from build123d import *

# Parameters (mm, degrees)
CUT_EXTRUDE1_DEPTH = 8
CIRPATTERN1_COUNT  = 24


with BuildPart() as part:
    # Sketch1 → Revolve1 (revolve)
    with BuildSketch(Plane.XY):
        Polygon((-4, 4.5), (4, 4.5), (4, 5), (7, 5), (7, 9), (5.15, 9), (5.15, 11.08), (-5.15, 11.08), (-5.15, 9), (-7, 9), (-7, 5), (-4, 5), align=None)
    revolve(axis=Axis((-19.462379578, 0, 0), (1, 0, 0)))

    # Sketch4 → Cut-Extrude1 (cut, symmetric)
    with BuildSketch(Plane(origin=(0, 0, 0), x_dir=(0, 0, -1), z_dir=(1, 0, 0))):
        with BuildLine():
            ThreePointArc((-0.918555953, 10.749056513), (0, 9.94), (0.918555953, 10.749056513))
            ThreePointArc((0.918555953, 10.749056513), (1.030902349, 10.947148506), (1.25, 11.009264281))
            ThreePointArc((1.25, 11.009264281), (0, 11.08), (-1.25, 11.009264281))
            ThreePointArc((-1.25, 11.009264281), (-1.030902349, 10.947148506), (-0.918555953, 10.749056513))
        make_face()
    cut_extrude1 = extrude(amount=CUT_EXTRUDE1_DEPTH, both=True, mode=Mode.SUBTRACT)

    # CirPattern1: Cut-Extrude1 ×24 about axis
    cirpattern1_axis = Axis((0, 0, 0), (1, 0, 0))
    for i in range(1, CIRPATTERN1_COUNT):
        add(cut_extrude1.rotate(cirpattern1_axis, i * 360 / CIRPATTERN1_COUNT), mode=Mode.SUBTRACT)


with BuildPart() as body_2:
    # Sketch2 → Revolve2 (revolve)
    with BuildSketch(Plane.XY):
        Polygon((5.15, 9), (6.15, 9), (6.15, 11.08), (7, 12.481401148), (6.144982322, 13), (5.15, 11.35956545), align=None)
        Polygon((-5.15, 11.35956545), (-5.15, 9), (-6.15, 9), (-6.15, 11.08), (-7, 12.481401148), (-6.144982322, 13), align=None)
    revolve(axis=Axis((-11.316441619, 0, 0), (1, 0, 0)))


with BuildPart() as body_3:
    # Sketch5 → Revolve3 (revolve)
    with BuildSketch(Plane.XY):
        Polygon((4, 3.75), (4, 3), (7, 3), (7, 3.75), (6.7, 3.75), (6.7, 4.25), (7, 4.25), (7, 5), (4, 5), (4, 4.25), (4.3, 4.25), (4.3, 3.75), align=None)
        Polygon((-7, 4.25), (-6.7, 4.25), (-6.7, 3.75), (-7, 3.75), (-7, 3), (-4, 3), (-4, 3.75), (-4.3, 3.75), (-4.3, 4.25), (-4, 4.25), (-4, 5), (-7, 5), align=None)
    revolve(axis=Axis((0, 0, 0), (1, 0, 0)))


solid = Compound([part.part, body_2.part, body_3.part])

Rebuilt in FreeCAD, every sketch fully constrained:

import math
import FreeCAD as App
import Part
import Sketcher

V = App.Vector
Q = App.Units.Quantity

doc = App.newDocument("Part")
body = doc.addObject("PartDesign::Body", "Body")

sketch1 = body.newObject("Sketcher::SketchObject", "Sketch")
sketch1.AttachmentSupport = (doc.getObject("XY_Plane"), [""])
sketch1.MapMode = "FlatFace"
sketch1.addGeometry(Part.LineSegment(V(-4, 4.5, 0), V(4, 4.5, 0)), False)
sketch1.addGeometry(Part.LineSegment(V(4, 4.5, 0), V(4, 5, 0)), False)
sketch1.addGeometry(Part.LineSegment(V(4, 5, 0), V(7, 5, 0)), False)
sketch1.addGeometry(Part.LineSegment(V(7, 5, 0), V(7, 9, 0)), False)
sketch1.addGeometry(Part.LineSegment(V(7, 9, 0), V(5.15, 9, 0)), False)
sketch1.addGeometry(Part.LineSegment(V(5.15, 9, 0), V(5.15, 11.08, 0)), False)
sketch1.addGeometry(Part.LineSegment(V(5.15, 11.08, 0), V(-5.15, 11.08, 0)), False)
sketch1.addGeometry(Part.LineSegment(V(-5.15, 11.08, 0), V(-5.15, 9, 0)), False)
sketch1.addGeometry(Part.LineSegment(V(-5.15, 9, 0), V(-7, 9, 0)), False)
sketch1.addGeometry(Part.LineSegment(V(-7, 9, 0), V(-7, 5, 0)), False)
sketch1.addGeometry(Part.LineSegment(V(-7, 5, 0), V(-4, 5, 0)), False)
sketch1.addGeometry(Part.LineSegment(V(-4, 5, 0), V(-4, 4.5, 0)), False)
sketch1.addConstraint(Sketcher.Constraint("Coincident", 0, 2, 1, 1))
sketch1.addConstraint(Sketcher.Constraint("Coincident", 1, 2, 2, 1))
sketch1.addConstraint(Sketcher.Constraint("Coincident", 2, 2, 3, 1))
sketch1.addConstraint(Sketcher.Constraint("Coincident", 3, 2, 4, 1))
sketch1.addConstraint(Sketcher.Constraint("Coincident", 4, 2, 5, 1))
sketch1.addConstraint(Sketcher.Constraint("Coincident", 5, 2, 6, 1))
sketch1.addConstraint(Sketcher.Constraint("Coincident", 6, 2, 7, 1))
sketch1.addConstraint(Sketcher.Constraint("Coincident", 7, 2, 8, 1))
sketch1.addConstraint(Sketcher.Constraint("Coincident", 8, 2, 9, 1))
sketch1.addConstraint(Sketcher.Constraint("Coincident", 9, 2, 10, 1))
sketch1.addConstraint(Sketcher.Constraint("Coincident", 10, 2, 11, 1))
sketch1.addConstraint(Sketcher.Constraint("Coincident", 11, 2, 0, 1))
sketch1.addConstraint(Sketcher.Constraint("Horizontal", 0))
sketch1.addConstraint(Sketcher.Constraint("Vertical", 1))
sketch1.addConstraint(Sketcher.Constraint("Horizontal", 2))
sketch1.addConstraint(Sketcher.Constraint("Vertical", 3))
sketch1.addConstraint(Sketcher.Constraint("Horizontal", 4))
sketch1.addConstraint(Sketcher.Constraint("Vertical", 5))
sketch1.addConstraint(Sketcher.Constraint("Horizontal", 6))
sketch1.addConstraint(Sketcher.Constraint("Vertical", 7))
sketch1.addConstraint(Sketcher.Constraint("Horizontal", 8))
sketch1.addConstraint(Sketcher.Constraint("Vertical", 9))
sketch1.addConstraint(Sketcher.Constraint("Horizontal", 10))
sketch1.addConstraint(Sketcher.Constraint("Vertical", 11))
sketch1.addConstraint(Sketcher.Constraint("Symmetric", 4, 2, 7, 2, -2))
sketch1.addConstraint(Sketcher.Constraint("Symmetric", 2, 2, 9, 2, -2))
sketch1.addConstraint(Sketcher.Constraint("Equal", 2, 10))
sketch1.addConstraint(Sketcher.Constraint("DistanceX", 0, 1, 0, 2, Q("8 mm")))
sketch1.addConstraint(Sketcher.Constraint("DistanceX", 2, 1, 2, 2, Q("3 mm")))
sketch1.addConstraint(Sketcher.Constraint("DistanceY", 3, 1, 3, 2, Q("4 mm")))
sketch1.addConstraint(Sketcher.Constraint("DistanceX", 6, 2, 6, 1, Q("10.3 mm")))
sketch1.addConstraint(Sketcher.Constraint("DistanceY", 1, 1, 1, 2, Q("0.5 mm")))
sketch1.addConstraint(Sketcher.Constraint("DistanceY", -1, 1, 1, 2, Q("5 mm")))
sketch1.addConstraint(Sketcher.Constraint("DistanceY", 5, 1, 5, 2, Q("2.08 mm")))
revolution = body.newObject("PartDesign::Revolution", "Revolution")
revolution.Profile = sketch1
revolution.ReferenceAxis = (sketch1, ["H_Axis"])
revolution.Angle = 360

sketch2 = body.newObject("Sketcher::SketchObject", "Sketch001")
sketch2.AttachmentSupport = (doc.getObject("YZ_Plane"), [""])
sketch2.MapMode = "FlatFace"
sketch2.addGeometry(Part.ArcOfCircle(Part.Circle(V(10.865966, 0, 0), V(0, 0, 1), 0.925966), math.radians(97.253334), math.radians(262.746666)), False)
sketch2.addGeometry(Part.ArcOfCircle(Part.Circle(V(10.71118, -1.216155, 0), V(0, 0, 1), 0.3), math.radians(-6.477664), math.radians(82.746666)), False)
sketch2.addGeometry(Part.ArcOfCircle(Part.Circle(V(0, 0, 0), V(0, 0, 1), 11.08), math.radians(-6.477665), math.radians(6.477665)), False)
sketch2.addGeometry(Part.ArcOfCircle(Part.Circle(V(10.71118, 1.216155, 0), V(0, 0, 1), 0.3), math.radians(-82.746666), math.radians(6.477664)), False)
sketch2.addConstraint(Sketcher.Constraint("Tangent", 0, 2, 1, 2))
sketch2.addConstraint(Sketcher.Constraint("Tangent", 1, 1, 2, 1))
sketch2.addConstraint(Sketcher.Constraint("Tangent", 2, 2, 3, 2))
sketch2.addConstraint(Sketcher.Constraint("Tangent", 3, 1, 0, 1))
sketch2.addConstraint(Sketcher.Constraint("Coincident", 2, 3, -1, 1))
sketch2.addConstraint(Sketcher.Constraint("Equal", 1, 3))
sketch2.addConstraint(Sketcher.Constraint("PointOnObject", 0, 3, -1))
sketch2.addConstraint(Sketcher.Constraint("Radius", 1, Q("0.3 mm")))
sketch2.addConstraint(Sketcher.Constraint("Radius", 2, Q("11.08 mm")))
sketch2.addConstraint(Sketcher.Constraint("DistanceY", 1, 1, 2, 2, Q("2.5 mm")))
sketch2.addConstraint(Sketcher.Constraint("Radius", 0, Q("0.925966 mm")))
pocket1 = body.newObject("PartDesign::Pocket", "Pocket")
pocket1.Profile = sketch2
pocket1.Length = 16
pocket1.Midplane = True
doc.recompute()

polarpattern = body.newObject("PartDesign::PolarPattern", "PolarPattern")
polarpattern.Originals = [pocket1]
polarpattern.Axis = (doc.getObject("X_Axis"), [""])
polarpattern.Angle = 360
polarpattern.Occurrences = 24
body.Tip = polarpattern
body2 = doc.addObject("PartDesign::Body", "Body001")
body2.AllowCompound = True

sketch3 = body2.newObject("Sketcher::SketchObject", "Sketch002")
sketch3.AttachmentSupport = (doc.getObject("XY_Plane001"), [""])
sketch3.MapMode = "FlatFace"
sketch3.addGeometry(Part.LineSegment(V(5.15, 9, 0), V(6.15, 9, 0)), False)
sketch3.addGeometry(Part.LineSegment(V(6.15, 9, 0), V(6.15, 11.08, 0)), False)
sketch3.addGeometry(Part.LineSegment(V(6.15, 11.08, 0), V(7, 12.481401, 0)), False)
sketch3.addGeometry(Part.LineSegment(V(7, 12.481401, 0), V(6.144982, 13, 0)), False)
sketch3.addGeometry(Part.LineSegment(V(6.144982, 13, 0), V(5.15, 11.359565, 0)), False)
sketch3.addGeometry(Part.LineSegment(V(5.15, 11.359565, 0), V(5.15, 9, 0)), False)
sketch3.addGeometry(Part.LineSegment(V(-5.15, 9, 0), V(-5.15, 11.359565, 0)), False)
sketch3.addGeometry(Part.LineSegment(V(-5.15, 11.359565, 0), V(-6.144982, 13, 0)), False)
sketch3.addGeometry(Part.LineSegment(V(-6.144982, 13, 0), V(-7, 12.481401, 0)), False)
sketch3.addGeometry(Part.LineSegment(V(-7, 12.481401, 0), V(-6.15, 11.08, 0)), False)
sketch3.addGeometry(Part.LineSegment(V(-6.15, 11.08, 0), V(-6.15, 9, 0)), False)
sketch3.addGeometry(Part.LineSegment(V(-6.15, 9, 0), V(-5.15, 9, 0)), False)
sketch3.addConstraint(Sketcher.Constraint("Coincident", 0, 2, 1, 1))
sketch3.addConstraint(Sketcher.Constraint("Coincident", 1, 2, 2, 1))
sketch3.addConstraint(Sketcher.Constraint("Coincident", 2, 2, 3, 1))
sketch3.addConstraint(Sketcher.Constraint("Coincident", 3, 2, 4, 1))
sketch3.addConstraint(Sketcher.Constraint("Coincident", 4, 2, 5, 1))
sketch3.addConstraint(Sketcher.Constraint("Coincident", 5, 2, 0, 1))
sketch3.addConstraint(Sketcher.Constraint("Coincident", 6, 2, 7, 1))
sketch3.addConstraint(Sketcher.Constraint("Coincident", 7, 2, 8, 1))
sketch3.addConstraint(Sketcher.Constraint("Coincident", 8, 2, 9, 1))
sketch3.addConstraint(Sketcher.Constraint("Coincident", 9, 2, 10, 1))
sketch3.addConstraint(Sketcher.Constraint("Coincident", 10, 2, 11, 1))
sketch3.addConstraint(Sketcher.Constraint("Coincident", 11, 2, 6, 1))
sketch3.addConstraint(Sketcher.Constraint("Horizontal", 0))
sketch3.addConstraint(Sketcher.Constraint("Vertical", 1))
sketch3.addConstraint(Sketcher.Constraint("Vertical", 5))
sketch3.addConstraint(Sketcher.Constraint("Vertical", 6))
sketch3.addConstraint(Sketcher.Constraint("Vertical", 10))
sketch3.addConstraint(Sketcher.Constraint("Horizontal", 11))
sketch3.addConstraint(Sketcher.Constraint("Symmetric", 4, 2, 6, 2, -2))
sketch3.addConstraint(Sketcher.Constraint("Symmetric", 3, 2, 7, 2, -2))
sketch3.addConstraint(Sketcher.Constraint("Symmetric", 2, 2, 8, 2, -2))
sketch3.addConstraint(Sketcher.Constraint("Symmetric", 1, 2, 9, 2, -2))
sketch3.addConstraint(Sketcher.Constraint("Perpendicular", 2, 3))
sketch3.addConstraint(Sketcher.Constraint("Perpendicular", 3, 4))
sketch3.addConstraint(Sketcher.Constraint("Horizontal", 5, 2, 10, 2))
sketch3.addConstraint(Sketcher.Constraint("DistanceX", 0, 1, 0, 2, Q("1 mm")))
sketch3.addConstraint(Sketcher.Constraint("Distance", 3, Q("1 mm")))
sketch3.addConstraint(Sketcher.Constraint("DistanceY", -1, 1, 0, 2, Q("9 mm")))
sketch3.addConstraint(Sketcher.Constraint("DistanceX", -1, 1, 2, 2, Q("7 mm")))
sketch3.addConstraint(Sketcher.Constraint("DistanceY", -1, 1, 3, 2, Q("13 mm")))
sketch3.addConstraint(Sketcher.Constraint("DistanceY", 1, 1, 1, 2, Q("2.08 mm")))
sketch3.addConstraint(Sketcher.Constraint("DistanceX", 6, 2, 4, 2, Q("10.3 mm")))
revolution2 = body2.newObject("PartDesign::Revolution", "Revolution001")
revolution2.Profile = sketch3
revolution2.ReferenceAxis = (sketch3, ["H_Axis"])
revolution2.Angle = 360
body3 = doc.addObject("PartDesign::Body", "Body002")
body3.AllowCompound = True

sketch4 = body3.newObject("Sketcher::SketchObject", "Sketch003")
sketch4.AttachmentSupport = (doc.getObject("XY_Plane002"), [""])
sketch4.MapMode = "FlatFace"
sketch4.addGeometry(Part.LineSegment(V(4, 3.75, 0), V(4, 3, 0)), False)
sketch4.addGeometry(Part.LineSegment(V(4, 3, 0), V(7, 3, 0)), False)
sketch4.addGeometry(Part.LineSegment(V(7, 3, 0), V(7, 3.75, 0)), False)
sketch4.addGeometry(Part.LineSegment(V(7, 3.75, 0), V(6.7, 3.75, 0)), False)
sketch4.addGeometry(Part.LineSegment(V(6.7, 3.75, 0), V(6.7, 4.25, 0)), False)
sketch4.addGeometry(Part.LineSegment(V(6.7, 4.25, 0), V(7, 4.25, 0)), False)
sketch4.addGeometry(Part.LineSegment(V(7, 4.25, 0), V(7, 5, 0)), False)
sketch4.addGeometry(Part.LineSegment(V(7, 5, 0), V(4, 5, 0)), False)
sketch4.addGeometry(Part.LineSegment(V(4, 5, 0), V(4, 4.25, 0)), False)
sketch4.addGeometry(Part.LineSegment(V(4, 4.25, 0), V(4.3, 4.25, 0)), False)
sketch4.addGeometry(Part.LineSegment(V(4.3, 4.25, 0), V(4.3, 3.75, 0)), False)
sketch4.addGeometry(Part.LineSegment(V(4.3, 3.75, 0), V(4, 3.75, 0)), False)
sketch4.addGeometry(Part.LineSegment(V(-7, 4.25, 0), V(-6.7, 4.25, 0)), False)
sketch4.addGeometry(Part.LineSegment(V(-6.7, 4.25, 0), V(-6.7, 3.75, 0)), False)
sketch4.addGeometry(Part.LineSegment(V(-6.7, 3.75, 0), V(-7, 3.75, 0)), False)
sketch4.addGeometry(Part.LineSegment(V(-7, 3.75, 0), V(-7, 3, 0)), False)
sketch4.addGeometry(Part.LineSegment(V(-7, 3, 0), V(-4, 3, 0)), False)
sketch4.addGeometry(Part.LineSegment(V(-4, 3, 0), V(-4, 3.75, 0)), False)
sketch4.addGeometry(Part.LineSegment(V(-4, 3.75, 0), V(-4.3, 3.75, 0)), False)
sketch4.addGeometry(Part.LineSegment(V(-4.3, 3.75, 0), V(-4.3, 4.25, 0)), False)
sketch4.addGeometry(Part.LineSegment(V(-4.3, 4.25, 0), V(-4, 4.25, 0)), False)
sketch4.addGeometry(Part.LineSegment(V(-4, 4.25, 0), V(-4, 5, 0)), False)
sketch4.addGeometry(Part.LineSegment(V(-4, 5, 0), V(-7, 5, 0)), False)
sketch4.addGeometry(Part.LineSegment(V(-7, 5, 0), V(-7, 4.25, 0)), False)
sketch4.addConstraint(Sketcher.Constraint("Coincident", 0, 2, 1, 1))
sketch4.addConstraint(Sketcher.Constraint("Coincident", 1, 2, 2, 1))
sketch4.addConstraint(Sketcher.Constraint("Coincident", 2, 2, 3, 1))
sketch4.addConstraint(Sketcher.Constraint("Coincident", 3, 2, 4, 1))
sketch4.addConstraint(Sketcher.Constraint("Coincident", 4, 2, 5, 1))
sketch4.addConstraint(Sketcher.Constraint("Coincident", 5, 2, 6, 1))
sketch4.addConstraint(Sketcher.Constraint("Coincident", 6, 2, 7, 1))
sketch4.addConstraint(Sketcher.Constraint("Coincident", 7, 2, 8, 1))
sketch4.addConstraint(Sketcher.Constraint("Coincident", 8, 2, 9, 1))
sketch4.addConstraint(Sketcher.Constraint("Coincident", 9, 2, 10, 1))
sketch4.addConstraint(Sketcher.Constraint("Coincident", 10, 2, 11, 1))
sketch4.addConstraint(Sketcher.Constraint("Coincident", 11, 2, 0, 1))
sketch4.addConstraint(Sketcher.Constraint("Coincident", 12, 2, 13, 1))
sketch4.addConstraint(Sketcher.Constraint("Coincident", 13, 2, 14, 1))
sketch4.addConstraint(Sketcher.Constraint("Coincident", 14, 2, 15, 1))
sketch4.addConstraint(Sketcher.Constraint("Coincident", 15, 2, 16, 1))
sketch4.addConstraint(Sketcher.Constraint("Coincident", 16, 2, 17, 1))
sketch4.addConstraint(Sketcher.Constraint("Coincident", 17, 2, 18, 1))
sketch4.addConstraint(Sketcher.Constraint("Coincident", 18, 2, 19, 1))
sketch4.addConstraint(Sketcher.Constraint("Coincident", 19, 2, 20, 1))
sketch4.addConstraint(Sketcher.Constraint("Coincident", 20, 2, 21, 1))
sketch4.addConstraint(Sketcher.Constraint("Coincident", 21, 2, 22, 1))
sketch4.addConstraint(Sketcher.Constraint("Coincident", 22, 2, 23, 1))
sketch4.addConstraint(Sketcher.Constraint("Coincident", 23, 2, 12, 1))
sketch4.addConstraint(Sketcher.Constraint("Vertical", 0))
sketch4.addConstraint(Sketcher.Constraint("Horizontal", 1))
sketch4.addConstraint(Sketcher.Constraint("Vertical", 2))
sketch4.addConstraint(Sketcher.Constraint("Horizontal", 3))
sketch4.addConstraint(Sketcher.Constraint("Vertical", 4))
sketch4.addConstraint(Sketcher.Constraint("Horizontal", 5))
sketch4.addConstraint(Sketcher.Constraint("Vertical", 6))
sketch4.addConstraint(Sketcher.Constraint("Horizontal", 7))
sketch4.addConstraint(Sketcher.Constraint("Vertical", 8))
sketch4.addConstraint(Sketcher.Constraint("Horizontal", 9))
sketch4.addConstraint(Sketcher.Constraint("Vertical", 10))
sketch4.addConstraint(Sketcher.Constraint("Horizontal", 11))
sketch4.addConstraint(Sketcher.Constraint("Horizontal", 12))
sketch4.addConstraint(Sketcher.Constraint("Vertical", 13))
sketch4.addConstraint(Sketcher.Constraint("Horizontal", 14))
sketch4.addConstraint(Sketcher.Constraint("Vertical", 15))
sketch4.addConstraint(Sketcher.Constraint("Horizontal", 16))
sketch4.addConstraint(Sketcher.Constraint("Vertical", 17))
sketch4.addConstraint(Sketcher.Constraint("Horizontal", 18))
sketch4.addConstraint(Sketcher.Constraint("Vertical", 19))
sketch4.addConstraint(Sketcher.Constraint("Horizontal", 20))
sketch4.addConstraint(Sketcher.Constraint("Vertical", 21))
sketch4.addConstraint(Sketcher.Constraint("Horizontal", 22))
sketch4.addConstraint(Sketcher.Constraint("Vertical", 23))
sketch4.addConstraint(Sketcher.Constraint("Symmetric", 4, 2, 12, 2, -2))
sketch4.addConstraint(Sketcher.Constraint("Symmetric", 2, 2, 14, 2, -2))
sketch4.addConstraint(Sketcher.Constraint("Symmetric", 0, 2, 16, 2, -2))
sketch4.addConstraint(Sketcher.Constraint("Symmetric", 10, 2, 18, 2, -2))
sketch4.addConstraint(Sketcher.Constraint("Symmetric", 8, 2, 20, 2, -2))
sketch4.addConstraint(Sketcher.Constraint("Symmetric", 6, 2, 22, 2, -2))
sketch4.addConstraint(Sketcher.Constraint("Horizontal", 5, 2, 8, 2))
sketch4.addConstraint(Sketcher.Constraint("Horizontal", 3, 2, 10, 2))
sketch4.addConstraint(Sketcher.Constraint("Vertical", 2, 2, 5, 2))
sketch4.addConstraint(Sketcher.Constraint("Vertical", 0, 2, 7, 2))
sketch4.addConstraint(Sketcher.Constraint("Equal", 5, 9))
sketch4.addConstraint(Sketcher.Constraint("Equal", 2, 6))
sketch4.addConstraint(Sketcher.Constraint("DistanceX", 1, 1, 1, 2, Q("3 mm")))
sketch4.addConstraint(Sketcher.Constraint("DistanceX", 3, 2, 3, 1, Q("0.3 mm")))
sketch4.addConstraint(Sketcher.Constraint("DistanceY", 4, 1, 4, 2, Q("0.5 mm")))
sketch4.addConstraint(Sketcher.Constraint("DistanceX", -1, 1, 0, 2, Q("4 mm")))
sketch4.addConstraint(Sketcher.Constraint("DistanceY", -1, 1, 0, 2, Q("3 mm")))
sketch4.addConstraint(Sketcher.Constraint("DistanceY", -1, 1, 6, 2, Q("5 mm")))
revolution3 = body3.newObject("PartDesign::Revolution", "Revolution002")
revolution3.Profile = sketch4
revolution3.ReferenceAxis = (sketch4, ["H_Axis"])
revolution3.Angle = 360

doc.recompute()
